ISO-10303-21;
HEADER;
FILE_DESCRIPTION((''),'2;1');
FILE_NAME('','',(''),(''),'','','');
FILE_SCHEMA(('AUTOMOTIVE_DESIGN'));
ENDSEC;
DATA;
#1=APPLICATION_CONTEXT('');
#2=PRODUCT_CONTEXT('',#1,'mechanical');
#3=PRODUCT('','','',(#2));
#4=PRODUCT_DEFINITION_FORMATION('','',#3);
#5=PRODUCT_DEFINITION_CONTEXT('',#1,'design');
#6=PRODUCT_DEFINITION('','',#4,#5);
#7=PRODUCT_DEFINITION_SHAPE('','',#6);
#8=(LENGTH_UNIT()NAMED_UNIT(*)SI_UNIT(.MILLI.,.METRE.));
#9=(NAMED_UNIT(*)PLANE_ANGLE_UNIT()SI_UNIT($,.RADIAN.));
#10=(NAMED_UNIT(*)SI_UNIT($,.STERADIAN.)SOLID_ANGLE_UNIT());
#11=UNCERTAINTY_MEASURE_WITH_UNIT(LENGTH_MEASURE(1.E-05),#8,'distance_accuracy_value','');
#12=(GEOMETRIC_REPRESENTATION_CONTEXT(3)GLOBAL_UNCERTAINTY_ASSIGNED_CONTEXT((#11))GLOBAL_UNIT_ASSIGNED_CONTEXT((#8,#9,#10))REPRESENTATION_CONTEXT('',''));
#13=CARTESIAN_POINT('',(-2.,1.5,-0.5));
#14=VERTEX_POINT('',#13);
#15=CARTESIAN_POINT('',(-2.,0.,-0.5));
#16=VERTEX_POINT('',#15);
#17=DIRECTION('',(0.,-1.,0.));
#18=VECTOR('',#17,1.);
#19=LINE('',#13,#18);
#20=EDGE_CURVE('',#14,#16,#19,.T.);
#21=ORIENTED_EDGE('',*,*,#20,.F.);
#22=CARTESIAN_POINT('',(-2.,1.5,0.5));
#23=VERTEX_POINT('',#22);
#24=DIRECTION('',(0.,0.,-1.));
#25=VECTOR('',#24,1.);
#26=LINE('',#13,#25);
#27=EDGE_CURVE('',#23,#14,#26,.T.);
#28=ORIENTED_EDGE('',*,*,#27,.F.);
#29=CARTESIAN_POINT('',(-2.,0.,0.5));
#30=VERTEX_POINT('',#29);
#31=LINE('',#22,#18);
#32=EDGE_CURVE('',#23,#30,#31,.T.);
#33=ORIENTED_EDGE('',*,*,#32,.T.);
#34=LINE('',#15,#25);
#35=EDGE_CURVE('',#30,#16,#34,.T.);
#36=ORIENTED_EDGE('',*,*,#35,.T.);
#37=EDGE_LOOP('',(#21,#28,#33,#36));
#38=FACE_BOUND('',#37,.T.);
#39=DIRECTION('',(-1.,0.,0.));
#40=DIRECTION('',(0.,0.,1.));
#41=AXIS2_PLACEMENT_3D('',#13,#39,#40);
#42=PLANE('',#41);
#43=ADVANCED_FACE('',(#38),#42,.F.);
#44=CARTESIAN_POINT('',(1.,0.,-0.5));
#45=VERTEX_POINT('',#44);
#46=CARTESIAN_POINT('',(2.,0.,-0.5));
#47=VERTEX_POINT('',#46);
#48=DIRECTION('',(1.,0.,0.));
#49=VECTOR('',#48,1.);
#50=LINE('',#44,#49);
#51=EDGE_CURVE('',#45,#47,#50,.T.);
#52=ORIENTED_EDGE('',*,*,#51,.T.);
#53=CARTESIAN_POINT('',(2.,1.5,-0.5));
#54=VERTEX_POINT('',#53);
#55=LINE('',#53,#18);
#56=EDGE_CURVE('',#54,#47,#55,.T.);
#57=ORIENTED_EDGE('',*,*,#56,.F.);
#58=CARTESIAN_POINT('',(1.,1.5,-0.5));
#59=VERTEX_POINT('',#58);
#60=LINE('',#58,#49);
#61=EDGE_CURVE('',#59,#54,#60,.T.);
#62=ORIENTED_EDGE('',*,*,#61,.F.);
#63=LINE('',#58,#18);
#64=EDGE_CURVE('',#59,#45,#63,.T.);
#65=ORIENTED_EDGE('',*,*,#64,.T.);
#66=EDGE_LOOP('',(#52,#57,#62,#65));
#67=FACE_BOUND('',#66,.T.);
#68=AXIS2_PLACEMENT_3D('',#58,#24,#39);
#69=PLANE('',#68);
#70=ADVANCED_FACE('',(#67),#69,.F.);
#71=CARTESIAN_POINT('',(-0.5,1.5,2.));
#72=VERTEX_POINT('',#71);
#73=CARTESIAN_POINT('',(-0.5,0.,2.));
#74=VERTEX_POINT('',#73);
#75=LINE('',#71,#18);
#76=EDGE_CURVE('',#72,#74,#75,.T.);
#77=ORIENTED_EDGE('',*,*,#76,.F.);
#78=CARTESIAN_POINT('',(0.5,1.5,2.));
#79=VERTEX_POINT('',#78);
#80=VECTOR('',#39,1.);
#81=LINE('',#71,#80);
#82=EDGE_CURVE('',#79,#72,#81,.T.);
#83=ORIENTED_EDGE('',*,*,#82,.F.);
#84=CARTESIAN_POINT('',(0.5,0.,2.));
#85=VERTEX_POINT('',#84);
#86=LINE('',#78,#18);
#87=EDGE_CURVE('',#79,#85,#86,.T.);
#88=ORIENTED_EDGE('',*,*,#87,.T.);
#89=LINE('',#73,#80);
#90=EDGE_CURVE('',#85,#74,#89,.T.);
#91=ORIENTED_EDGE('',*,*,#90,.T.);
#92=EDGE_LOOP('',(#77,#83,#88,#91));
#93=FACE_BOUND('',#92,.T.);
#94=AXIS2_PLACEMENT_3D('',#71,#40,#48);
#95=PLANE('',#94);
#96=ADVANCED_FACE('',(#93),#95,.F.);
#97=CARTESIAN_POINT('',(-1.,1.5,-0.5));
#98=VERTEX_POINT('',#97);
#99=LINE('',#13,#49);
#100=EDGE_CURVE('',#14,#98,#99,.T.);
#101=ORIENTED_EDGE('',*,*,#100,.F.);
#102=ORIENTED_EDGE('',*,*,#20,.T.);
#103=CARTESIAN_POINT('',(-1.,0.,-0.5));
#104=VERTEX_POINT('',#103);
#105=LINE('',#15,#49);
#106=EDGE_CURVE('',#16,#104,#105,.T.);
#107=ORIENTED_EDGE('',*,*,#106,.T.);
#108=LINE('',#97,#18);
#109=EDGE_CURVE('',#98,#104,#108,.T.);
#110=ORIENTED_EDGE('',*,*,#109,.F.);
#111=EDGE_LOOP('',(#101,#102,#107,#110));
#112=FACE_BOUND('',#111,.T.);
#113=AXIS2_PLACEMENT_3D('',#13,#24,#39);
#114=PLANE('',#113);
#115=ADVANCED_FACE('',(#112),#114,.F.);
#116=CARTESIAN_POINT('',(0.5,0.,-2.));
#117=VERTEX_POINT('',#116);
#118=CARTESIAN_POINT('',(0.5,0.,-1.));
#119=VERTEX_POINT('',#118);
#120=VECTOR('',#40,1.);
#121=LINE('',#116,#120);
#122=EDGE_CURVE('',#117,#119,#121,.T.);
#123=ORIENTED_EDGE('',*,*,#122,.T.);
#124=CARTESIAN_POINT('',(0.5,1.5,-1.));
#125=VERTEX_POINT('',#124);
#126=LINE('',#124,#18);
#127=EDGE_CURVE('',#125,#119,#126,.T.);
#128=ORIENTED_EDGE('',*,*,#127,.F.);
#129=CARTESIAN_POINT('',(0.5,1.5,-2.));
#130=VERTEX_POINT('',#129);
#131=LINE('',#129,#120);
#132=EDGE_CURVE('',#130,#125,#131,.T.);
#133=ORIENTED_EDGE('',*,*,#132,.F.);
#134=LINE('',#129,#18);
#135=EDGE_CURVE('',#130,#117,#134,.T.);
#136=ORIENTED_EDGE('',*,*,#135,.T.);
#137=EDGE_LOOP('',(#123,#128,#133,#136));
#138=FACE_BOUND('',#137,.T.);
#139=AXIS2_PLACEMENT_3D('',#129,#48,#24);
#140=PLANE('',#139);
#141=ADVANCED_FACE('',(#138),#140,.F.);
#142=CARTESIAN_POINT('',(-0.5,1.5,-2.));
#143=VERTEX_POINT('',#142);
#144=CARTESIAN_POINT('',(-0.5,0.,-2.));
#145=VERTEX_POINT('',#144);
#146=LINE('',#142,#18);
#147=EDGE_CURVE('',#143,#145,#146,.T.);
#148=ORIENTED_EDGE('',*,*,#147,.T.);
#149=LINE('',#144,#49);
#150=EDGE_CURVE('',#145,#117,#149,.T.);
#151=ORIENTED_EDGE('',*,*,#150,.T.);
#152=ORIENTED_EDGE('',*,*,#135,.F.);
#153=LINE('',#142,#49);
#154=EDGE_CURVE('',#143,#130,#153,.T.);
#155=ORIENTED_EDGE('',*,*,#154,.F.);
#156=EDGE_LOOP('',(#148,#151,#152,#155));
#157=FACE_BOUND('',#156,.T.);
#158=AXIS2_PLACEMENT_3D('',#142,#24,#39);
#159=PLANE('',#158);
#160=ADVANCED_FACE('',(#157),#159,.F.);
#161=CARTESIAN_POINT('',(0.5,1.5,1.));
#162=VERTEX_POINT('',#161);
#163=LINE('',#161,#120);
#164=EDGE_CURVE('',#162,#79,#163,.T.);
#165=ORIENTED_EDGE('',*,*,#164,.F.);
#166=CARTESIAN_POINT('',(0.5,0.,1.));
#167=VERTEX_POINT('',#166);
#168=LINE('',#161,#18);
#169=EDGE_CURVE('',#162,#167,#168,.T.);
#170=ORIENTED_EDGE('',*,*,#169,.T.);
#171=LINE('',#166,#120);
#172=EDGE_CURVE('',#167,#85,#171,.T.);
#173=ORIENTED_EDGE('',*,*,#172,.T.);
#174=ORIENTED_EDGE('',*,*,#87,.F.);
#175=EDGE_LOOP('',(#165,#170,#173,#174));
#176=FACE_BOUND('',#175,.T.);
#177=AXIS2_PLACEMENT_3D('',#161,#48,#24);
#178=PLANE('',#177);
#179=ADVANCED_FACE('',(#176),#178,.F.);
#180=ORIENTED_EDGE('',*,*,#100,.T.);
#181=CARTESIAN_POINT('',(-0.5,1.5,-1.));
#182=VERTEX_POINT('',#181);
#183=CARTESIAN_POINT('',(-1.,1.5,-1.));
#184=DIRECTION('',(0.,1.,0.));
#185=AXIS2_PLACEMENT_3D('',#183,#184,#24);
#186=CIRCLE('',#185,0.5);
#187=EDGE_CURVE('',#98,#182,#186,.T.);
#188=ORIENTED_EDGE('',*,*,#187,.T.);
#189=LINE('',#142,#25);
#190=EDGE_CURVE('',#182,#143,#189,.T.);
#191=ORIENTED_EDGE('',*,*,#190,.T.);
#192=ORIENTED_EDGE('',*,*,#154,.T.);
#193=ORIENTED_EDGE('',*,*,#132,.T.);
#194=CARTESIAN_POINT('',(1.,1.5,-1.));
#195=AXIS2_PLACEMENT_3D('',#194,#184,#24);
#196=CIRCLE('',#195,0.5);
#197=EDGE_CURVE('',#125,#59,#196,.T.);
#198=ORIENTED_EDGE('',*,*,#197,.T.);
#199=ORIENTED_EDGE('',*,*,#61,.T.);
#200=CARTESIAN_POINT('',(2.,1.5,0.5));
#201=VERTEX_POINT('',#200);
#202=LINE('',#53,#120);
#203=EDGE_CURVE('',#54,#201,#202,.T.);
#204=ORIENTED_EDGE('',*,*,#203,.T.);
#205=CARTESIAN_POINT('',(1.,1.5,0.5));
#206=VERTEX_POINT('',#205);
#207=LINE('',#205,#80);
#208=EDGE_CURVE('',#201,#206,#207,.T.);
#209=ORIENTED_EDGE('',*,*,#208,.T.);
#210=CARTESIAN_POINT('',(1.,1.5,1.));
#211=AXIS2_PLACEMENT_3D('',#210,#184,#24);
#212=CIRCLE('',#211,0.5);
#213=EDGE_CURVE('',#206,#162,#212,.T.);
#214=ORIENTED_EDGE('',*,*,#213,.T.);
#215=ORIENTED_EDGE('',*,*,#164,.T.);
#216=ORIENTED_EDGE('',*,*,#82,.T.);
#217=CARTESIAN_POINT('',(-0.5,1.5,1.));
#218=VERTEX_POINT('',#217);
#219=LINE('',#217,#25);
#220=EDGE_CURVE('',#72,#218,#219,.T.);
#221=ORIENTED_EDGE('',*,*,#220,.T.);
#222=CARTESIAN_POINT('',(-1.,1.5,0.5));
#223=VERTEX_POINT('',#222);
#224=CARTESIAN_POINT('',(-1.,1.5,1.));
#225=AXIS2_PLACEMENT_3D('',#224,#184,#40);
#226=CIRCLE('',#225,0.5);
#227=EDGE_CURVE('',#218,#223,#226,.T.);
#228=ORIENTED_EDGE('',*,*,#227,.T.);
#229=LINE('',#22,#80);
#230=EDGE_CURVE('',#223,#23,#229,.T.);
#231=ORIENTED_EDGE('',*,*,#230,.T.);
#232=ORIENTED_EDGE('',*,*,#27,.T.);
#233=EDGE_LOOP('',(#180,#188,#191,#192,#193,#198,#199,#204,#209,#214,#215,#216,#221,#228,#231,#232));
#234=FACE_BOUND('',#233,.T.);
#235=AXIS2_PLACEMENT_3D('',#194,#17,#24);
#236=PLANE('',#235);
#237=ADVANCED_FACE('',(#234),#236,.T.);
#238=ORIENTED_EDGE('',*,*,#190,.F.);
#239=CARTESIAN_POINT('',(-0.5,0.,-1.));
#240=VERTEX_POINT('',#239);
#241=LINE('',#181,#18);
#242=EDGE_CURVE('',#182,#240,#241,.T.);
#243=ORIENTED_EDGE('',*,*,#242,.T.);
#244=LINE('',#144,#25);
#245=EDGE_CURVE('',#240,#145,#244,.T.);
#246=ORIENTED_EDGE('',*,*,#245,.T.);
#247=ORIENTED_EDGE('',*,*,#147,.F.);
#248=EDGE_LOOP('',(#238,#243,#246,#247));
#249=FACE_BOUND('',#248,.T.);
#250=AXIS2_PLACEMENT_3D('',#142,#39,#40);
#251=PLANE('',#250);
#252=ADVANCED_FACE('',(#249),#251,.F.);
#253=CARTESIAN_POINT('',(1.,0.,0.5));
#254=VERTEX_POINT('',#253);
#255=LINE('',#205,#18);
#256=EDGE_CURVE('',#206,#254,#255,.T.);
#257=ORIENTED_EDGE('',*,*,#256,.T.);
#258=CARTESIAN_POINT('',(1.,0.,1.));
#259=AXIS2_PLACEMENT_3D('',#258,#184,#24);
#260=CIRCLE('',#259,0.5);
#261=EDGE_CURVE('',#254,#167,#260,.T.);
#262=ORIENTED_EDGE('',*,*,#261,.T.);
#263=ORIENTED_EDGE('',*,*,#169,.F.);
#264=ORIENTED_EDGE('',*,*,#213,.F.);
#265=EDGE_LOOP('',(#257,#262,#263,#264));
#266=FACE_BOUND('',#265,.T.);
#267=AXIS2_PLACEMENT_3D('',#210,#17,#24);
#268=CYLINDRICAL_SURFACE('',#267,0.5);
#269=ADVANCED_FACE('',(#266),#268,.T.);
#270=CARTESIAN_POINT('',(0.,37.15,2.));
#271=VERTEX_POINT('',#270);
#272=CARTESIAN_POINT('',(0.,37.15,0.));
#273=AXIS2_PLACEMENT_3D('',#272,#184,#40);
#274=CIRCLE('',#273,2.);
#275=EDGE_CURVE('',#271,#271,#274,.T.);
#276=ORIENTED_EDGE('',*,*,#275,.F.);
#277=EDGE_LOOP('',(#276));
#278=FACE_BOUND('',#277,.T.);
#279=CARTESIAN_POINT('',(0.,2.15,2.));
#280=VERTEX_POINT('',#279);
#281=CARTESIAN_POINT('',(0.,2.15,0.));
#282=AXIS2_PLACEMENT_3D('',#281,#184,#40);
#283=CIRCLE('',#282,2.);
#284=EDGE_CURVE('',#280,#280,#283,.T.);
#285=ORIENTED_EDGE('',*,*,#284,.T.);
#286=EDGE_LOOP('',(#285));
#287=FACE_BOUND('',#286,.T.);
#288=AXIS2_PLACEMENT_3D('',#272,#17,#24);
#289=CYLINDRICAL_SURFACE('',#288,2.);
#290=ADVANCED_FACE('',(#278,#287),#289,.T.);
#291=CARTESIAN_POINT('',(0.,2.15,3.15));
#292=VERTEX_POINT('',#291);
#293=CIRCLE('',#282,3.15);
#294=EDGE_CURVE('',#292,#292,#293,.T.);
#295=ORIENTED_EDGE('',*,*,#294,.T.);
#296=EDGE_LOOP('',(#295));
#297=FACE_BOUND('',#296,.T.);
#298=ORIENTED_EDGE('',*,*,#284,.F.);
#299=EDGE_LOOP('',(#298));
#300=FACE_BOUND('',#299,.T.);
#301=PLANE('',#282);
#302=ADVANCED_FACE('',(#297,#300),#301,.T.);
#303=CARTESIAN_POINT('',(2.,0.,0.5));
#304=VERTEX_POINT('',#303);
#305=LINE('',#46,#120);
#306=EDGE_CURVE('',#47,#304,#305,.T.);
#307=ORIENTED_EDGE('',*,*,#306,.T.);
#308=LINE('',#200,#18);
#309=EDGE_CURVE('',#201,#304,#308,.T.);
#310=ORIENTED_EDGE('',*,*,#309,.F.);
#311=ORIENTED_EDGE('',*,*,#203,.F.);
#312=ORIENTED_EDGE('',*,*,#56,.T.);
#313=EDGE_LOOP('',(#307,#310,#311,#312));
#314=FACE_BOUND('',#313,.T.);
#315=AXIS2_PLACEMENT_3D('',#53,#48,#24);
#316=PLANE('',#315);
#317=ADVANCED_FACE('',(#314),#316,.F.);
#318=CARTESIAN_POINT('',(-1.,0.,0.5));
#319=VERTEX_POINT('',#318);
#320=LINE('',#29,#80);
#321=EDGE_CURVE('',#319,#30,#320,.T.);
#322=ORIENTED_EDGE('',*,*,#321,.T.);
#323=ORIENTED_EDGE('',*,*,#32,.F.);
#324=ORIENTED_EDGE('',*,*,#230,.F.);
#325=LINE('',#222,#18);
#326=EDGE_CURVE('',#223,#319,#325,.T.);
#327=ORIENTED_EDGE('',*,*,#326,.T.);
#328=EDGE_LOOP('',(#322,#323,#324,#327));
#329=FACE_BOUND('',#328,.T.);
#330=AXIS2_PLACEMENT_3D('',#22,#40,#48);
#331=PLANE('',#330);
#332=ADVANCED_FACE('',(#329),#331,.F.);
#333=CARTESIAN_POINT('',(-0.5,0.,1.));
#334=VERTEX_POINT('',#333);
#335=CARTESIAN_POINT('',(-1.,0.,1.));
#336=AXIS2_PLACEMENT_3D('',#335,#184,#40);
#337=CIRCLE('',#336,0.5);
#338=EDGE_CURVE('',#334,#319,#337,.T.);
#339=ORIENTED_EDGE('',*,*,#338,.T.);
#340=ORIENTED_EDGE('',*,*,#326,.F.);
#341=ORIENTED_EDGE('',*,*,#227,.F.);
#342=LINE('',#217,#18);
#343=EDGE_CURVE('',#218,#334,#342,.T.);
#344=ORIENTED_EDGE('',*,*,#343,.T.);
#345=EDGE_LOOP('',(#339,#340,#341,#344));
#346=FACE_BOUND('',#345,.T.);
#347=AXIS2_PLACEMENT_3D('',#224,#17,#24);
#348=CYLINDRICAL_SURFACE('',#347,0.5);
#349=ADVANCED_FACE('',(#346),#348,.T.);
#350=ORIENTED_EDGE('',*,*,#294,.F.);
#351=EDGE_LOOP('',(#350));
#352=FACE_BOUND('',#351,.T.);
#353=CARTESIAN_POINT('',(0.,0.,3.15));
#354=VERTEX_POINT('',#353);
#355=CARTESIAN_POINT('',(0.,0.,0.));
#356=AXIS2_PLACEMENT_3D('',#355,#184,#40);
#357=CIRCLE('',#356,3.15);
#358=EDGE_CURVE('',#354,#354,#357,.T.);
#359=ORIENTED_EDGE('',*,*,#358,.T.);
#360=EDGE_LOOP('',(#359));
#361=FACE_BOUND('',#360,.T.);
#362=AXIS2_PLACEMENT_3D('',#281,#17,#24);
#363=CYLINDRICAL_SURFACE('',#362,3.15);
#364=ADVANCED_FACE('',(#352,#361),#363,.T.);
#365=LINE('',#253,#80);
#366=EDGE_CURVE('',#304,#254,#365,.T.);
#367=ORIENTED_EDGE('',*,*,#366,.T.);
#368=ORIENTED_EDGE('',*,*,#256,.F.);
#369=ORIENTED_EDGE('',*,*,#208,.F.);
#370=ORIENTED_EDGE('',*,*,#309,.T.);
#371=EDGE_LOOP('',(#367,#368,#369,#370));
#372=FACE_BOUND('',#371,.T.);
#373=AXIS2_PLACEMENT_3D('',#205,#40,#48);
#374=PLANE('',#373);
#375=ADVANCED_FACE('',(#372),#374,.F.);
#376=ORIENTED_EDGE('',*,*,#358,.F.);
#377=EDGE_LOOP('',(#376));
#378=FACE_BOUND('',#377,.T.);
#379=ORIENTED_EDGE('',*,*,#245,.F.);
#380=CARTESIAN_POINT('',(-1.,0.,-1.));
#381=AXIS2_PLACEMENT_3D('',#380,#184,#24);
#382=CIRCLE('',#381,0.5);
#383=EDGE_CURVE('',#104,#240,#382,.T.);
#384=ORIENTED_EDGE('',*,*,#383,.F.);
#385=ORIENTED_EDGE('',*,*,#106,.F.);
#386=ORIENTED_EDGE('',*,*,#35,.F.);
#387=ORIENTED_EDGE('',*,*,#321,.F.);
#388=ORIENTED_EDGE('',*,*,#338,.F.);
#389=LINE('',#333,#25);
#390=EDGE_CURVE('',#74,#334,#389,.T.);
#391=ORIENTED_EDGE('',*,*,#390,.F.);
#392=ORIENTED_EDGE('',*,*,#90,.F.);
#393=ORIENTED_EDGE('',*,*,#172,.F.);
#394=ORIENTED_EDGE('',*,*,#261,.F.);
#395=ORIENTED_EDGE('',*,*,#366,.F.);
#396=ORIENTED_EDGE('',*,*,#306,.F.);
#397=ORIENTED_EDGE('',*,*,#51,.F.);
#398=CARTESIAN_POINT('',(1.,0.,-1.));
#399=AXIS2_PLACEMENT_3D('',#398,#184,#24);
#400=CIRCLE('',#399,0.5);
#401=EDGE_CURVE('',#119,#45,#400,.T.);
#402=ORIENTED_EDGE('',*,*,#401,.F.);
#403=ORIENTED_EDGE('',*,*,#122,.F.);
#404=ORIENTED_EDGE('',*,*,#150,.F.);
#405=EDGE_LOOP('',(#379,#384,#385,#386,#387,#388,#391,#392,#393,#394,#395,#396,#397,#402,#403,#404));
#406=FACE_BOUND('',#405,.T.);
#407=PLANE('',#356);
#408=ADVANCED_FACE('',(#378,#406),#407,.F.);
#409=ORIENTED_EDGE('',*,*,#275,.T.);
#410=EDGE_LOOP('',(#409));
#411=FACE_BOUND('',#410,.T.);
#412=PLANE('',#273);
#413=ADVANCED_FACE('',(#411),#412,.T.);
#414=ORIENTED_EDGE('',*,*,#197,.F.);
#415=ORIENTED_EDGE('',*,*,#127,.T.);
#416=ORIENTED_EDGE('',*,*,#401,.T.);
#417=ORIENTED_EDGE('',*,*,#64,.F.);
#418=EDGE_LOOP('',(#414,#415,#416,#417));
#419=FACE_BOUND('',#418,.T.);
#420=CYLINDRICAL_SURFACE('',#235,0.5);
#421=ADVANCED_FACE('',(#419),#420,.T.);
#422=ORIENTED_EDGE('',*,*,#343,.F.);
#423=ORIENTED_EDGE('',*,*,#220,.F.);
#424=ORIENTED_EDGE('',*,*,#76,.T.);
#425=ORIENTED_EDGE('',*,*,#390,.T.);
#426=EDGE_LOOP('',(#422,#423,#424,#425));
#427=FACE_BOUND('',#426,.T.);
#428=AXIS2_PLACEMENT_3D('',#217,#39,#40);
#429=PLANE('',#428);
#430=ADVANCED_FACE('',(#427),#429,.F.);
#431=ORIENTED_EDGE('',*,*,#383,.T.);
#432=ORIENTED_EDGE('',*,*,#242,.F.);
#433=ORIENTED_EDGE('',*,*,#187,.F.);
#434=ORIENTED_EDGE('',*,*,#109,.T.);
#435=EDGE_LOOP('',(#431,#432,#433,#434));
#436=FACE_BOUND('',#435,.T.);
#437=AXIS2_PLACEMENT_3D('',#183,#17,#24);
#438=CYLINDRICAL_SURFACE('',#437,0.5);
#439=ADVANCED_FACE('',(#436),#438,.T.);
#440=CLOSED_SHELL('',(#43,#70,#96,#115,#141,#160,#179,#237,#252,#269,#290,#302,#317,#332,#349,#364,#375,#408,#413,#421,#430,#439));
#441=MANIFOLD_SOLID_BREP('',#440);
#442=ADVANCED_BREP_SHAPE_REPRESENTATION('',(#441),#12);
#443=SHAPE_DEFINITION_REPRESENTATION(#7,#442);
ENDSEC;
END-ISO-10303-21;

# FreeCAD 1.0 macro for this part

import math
import FreeCAD as App
import Part
import Sketcher

V = App.Vector
Q = App.Units.Quantity

doc = App.newDocument("Part")
body = doc.addObject("PartDesign::Body", "Body")

# Sketch on XZ plane
sketch1 = body.newObject("Sketcher::SketchObject", "Sketch")
sketch1.AttachmentSupport = (doc.getObject("XZ_Plane"), [""])
sketch1.MapMode = "FlatFace"
sketch1.addGeometry(Part.Circle(V(0, 0, 0), V(0, 0, 1), 3.1), False)
sketch1.addConstraint([
    Sketcher.Constraint("Coincident", 0, 3, -1, 1),
    Sketcher.Constraint("Diameter", 0, Q("6.3 mm")),
])
pad1 = body.newObject("PartDesign::Pad", "Pad")
pad1.Profile = sketch1
pad1.Length = 2.15
pad1.Reversed = True

# Sketch on XZ plane
sketch2 = body.newObject("Sketcher::SketchObject", "Sketch001")
sketch2.AttachmentSupport = (doc.getObject("XZ_Plane"), [""])
sketch2.MapMode = "FlatFace"
sketch2.AttachmentOffset = App.Placement(V(0, 0, -2.15), App.Rotation())
sketch2.addGeometry(Part.Circle(V(0, 0, 0), V(0, 0, 1), 2), False)
sketch2.addConstraint([
    Sketcher.Constraint("Coincident", 0, 3, -1, 1),
    Sketcher.Constraint("Diameter", 0, Q("4 mm")),
])
pad2 = body.newObject("PartDesign::Pad", "Pad001")
pad2.Profile = sketch2
pad2.Length = 35
pad2.Reversed = True

# Sketch on XZ plane
sketch3 = body.newObject("Sketcher::SketchObject", "Sketch002")
sketch3.AttachmentSupport = (doc.getObject("XZ_Plane"), [""])
sketch3.MapMode = "FlatFace"
sketch3.addGeometry([
    Part.LineSegment(V(-0.5, 2, 0), V(-0.5, 1, 0)),  # 0
    Part.ArcOfCircle(Part.Circle(V(-1, 1, 0), V(0, 0, 1), 0.5), math.radians(-90), math.radians(0)),  # 1
    Part.LineSegment(V(-1, 0.5, 0), V(-2, 0.5, 0)),  # 2
    Part.LineSegment(V(-2, 0.5, 0), V(-2, -0.5, 0)),  # 3
    Part.LineSegment(V(-2, -0.5, 0), V(-1, -0.5, 0)),  # 4
    Part.ArcOfCircle(Part.Circle(V(-1, -1, 0), V(0, 0, 1), 0.5), math.radians(0), math.radians(90)),  # 5
    Part.LineSegment(V(-0.5, -1, 0), V(-0.5, -2, 0)),  # 6
    Part.LineSegment(V(-0.5, -2, 0), V(0.5, -2, 0)),  # 7
    Part.LineSegment(V(0.5, -2, 0), V(0.5, -1, 0)),  # 8
    Part.ArcOfCircle(Part.Circle(V(1, -1, 0), V(0, 0, 1), 0.5), math.radians(90), math.radians(180)),  # 9
    Part.LineSegment(V(1, -0.5, 0), V(2, -0.5, 0)),  # 10
    Part.LineSegment(V(2, -0.5, 0), V(2, 0.5, 0)),  # 11
    Part.LineSegment(V(2, 0.5, 0), V(1, 0.5, 0)),  # 12
    Part.ArcOfCircle(Part.Circle(V(1, 1, 0), V(0, 0, 1), 0.5), math.radians(180), math.radians(270)),  # 13
    Part.LineSegment(V(0.5, 1, 0), V(0.5, 2, 0)),  # 14
    Part.LineSegment(V(0.5, 2, 0), V(-0.5, 2, 0)),  # 15
], False)
sketch3.addConstraint([
    Sketcher.Constraint("Tangent", 0, 2, 1, 2),
    Sketcher.Constraint("Tangent", 1, 1, 2, 1),
    Sketcher.Constraint("Coincident", 2, 2, 3, 1),
    Sketcher.Constraint("Coincident", 3, 2, 4, 1),
    Sketcher.Constraint("Tangent", 4, 2, 5, 2),
    Sketcher.Constraint("Tangent", 5, 1, 6, 1),
    Sketcher.Constraint("Coincident", 6, 2, 7, 1),
    Sketcher.Constraint("Coincident", 7, 2, 8, 1),
    Sketcher.Constraint("Tangent", 8, 2, 9, 2),
    Sketcher.Constraint("Tangent", 9, 1, 10, 1),
    Sketcher.Constraint("Coincident", 10, 2, 11, 1),
    Sketcher.Constraint("Coincident", 11, 2, 12, 1),
    Sketcher.Constraint("Tangent", 12, 2, 13, 2),
    Sketcher.Constraint("Tangent", 13, 1, 14, 1),
    Sketcher.Constraint("Coincident", 14, 2, 15, 1),
    Sketcher.Constraint("Coincident", 15, 2, 0, 1),
    Sketcher.Constraint("Vertical", 0),
    Sketcher.Constraint("Horizontal", 2),
    Sketcher.Constraint("Vertical", 3),
    Sketcher.Constraint("Horizontal", 4),
    Sketcher.Constraint("Vertical", 6),
    Sketcher.Constraint("Horizontal", 7),
    Sketcher.Constraint("Vertical", 8),
    Sketcher.Constraint("Horizontal", 10),
    Sketcher.Constraint("Vertical", 11),
    Sketcher.Constraint("Horizontal", 12),
    Sketcher.Constraint("Vertical", 14),
    Sketcher.Constraint("Horizontal", 15),
    Sketcher.Constraint("Equal", 1, 5),
    Sketcher.Constraint("Equal", 5, 9),
    Sketcher.Constraint("Equal", 9, 13),
    Sketcher.Constraint("Symmetric", 1, 3, 9, 3, -1, 1),
    Sketcher.Constraint("Symmetric", 5, 3, 13, 3, -1, 1),
    Sketcher.Constraint("Symmetric", 5, 3, 9, 3, -2),
    Sketcher.Constraint("Equal", 4, 7),
    Sketcher.Constraint("Equal", 7, 10),
    Sketcher.Constraint("Equal", 15, 0),
    Sketcher.Constraint("Equal", 0, 3),
    Sketcher.Constraint("Equal", 3, 6),
    Sketcher.Constraint("Radius", 1, Q("0.5 mm")),
    Sketcher.Constraint("DistanceX", 2, 2, 2, 1, Q("1 mm")),
])
pocket1 = body.newObject("PartDesign::Pocket", "Pocket")
pocket1.Profile = sketch3
pocket1.Length = 1.5

doc.recompute()
